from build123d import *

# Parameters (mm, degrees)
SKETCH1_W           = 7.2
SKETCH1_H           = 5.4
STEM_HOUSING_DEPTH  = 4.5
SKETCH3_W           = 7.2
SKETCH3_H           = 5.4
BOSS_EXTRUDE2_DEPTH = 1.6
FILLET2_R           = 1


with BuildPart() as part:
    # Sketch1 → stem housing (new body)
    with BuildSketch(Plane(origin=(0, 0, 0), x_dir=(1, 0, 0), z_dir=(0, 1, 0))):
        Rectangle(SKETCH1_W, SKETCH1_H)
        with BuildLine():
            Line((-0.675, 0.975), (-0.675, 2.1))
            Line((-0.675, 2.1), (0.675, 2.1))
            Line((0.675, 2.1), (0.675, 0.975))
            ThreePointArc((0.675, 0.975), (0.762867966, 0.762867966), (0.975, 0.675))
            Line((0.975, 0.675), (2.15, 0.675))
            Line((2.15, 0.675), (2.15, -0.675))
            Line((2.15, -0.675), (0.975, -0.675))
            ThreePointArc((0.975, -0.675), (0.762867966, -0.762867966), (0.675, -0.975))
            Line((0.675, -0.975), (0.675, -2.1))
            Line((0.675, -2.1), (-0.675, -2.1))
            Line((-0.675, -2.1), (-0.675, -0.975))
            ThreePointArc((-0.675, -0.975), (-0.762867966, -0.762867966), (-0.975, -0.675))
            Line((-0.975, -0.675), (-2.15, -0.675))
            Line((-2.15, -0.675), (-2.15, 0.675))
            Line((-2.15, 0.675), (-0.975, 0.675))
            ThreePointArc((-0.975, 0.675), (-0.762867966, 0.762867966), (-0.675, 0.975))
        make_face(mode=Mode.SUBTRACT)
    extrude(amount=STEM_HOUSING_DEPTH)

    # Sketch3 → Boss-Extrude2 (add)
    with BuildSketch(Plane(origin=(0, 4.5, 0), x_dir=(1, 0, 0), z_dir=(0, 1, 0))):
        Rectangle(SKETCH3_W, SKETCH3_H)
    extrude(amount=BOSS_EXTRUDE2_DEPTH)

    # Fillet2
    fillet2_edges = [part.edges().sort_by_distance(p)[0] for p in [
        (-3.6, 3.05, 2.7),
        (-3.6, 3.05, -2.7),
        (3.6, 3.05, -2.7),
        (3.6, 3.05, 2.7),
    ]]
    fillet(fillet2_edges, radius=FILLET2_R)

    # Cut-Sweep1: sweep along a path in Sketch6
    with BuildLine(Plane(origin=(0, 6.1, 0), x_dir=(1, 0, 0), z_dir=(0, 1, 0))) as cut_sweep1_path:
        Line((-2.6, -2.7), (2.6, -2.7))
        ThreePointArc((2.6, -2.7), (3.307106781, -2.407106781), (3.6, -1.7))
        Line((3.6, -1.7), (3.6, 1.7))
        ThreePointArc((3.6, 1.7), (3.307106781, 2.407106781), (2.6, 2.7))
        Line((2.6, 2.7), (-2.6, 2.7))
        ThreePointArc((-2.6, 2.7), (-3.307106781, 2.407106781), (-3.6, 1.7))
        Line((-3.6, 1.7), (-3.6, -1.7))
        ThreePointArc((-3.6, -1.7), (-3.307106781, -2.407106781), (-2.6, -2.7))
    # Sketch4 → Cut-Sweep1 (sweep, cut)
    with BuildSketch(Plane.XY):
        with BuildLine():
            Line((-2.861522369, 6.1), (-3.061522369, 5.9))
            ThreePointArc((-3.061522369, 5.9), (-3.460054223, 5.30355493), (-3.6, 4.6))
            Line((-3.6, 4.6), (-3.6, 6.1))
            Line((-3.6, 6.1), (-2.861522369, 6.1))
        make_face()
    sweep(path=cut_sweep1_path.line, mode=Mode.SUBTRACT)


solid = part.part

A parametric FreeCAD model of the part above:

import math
import FreeCAD as App
import Part
import Sketcher

V = App.Vector
Q = App.Units.Quantity


def edges_at(feature, points):
    """Names of the edges that pass closest to the given points."""
    edges = feature.Shape.Edges
    near = lambda p: min(range(len(edges)), key=lambda i: edges[i].distToShape(Part.Vertex(*p))[0])
    return sorted({f"Edge{near(p) + 1}" for p in points})

doc = App.newDocument("Part")
params = doc.addObject("Spreadsheet::Sheet", "Params")
for row, (alias, value) in enumerate([
    ("sketch1_radius", "0.3 mm"),
    ("sketch1_width", "7.2 mm"),
    ("sketch1_height", "5.4 mm"),
    ("sketch1_width2", "1.35 mm"),
    ("pad1_length", "4.5 mm"),
    ("sketch2_width", "7.2 mm"),
    ("sketch2_height", "5.4 mm"),
    ("pad2_length", "1.6 mm"),
    ("fillet_radius", "1 mm"),
    ("sketch3_height", "1.5 mm"),
    ("sketch4_radius", "1 mm"),
    ("sketch4_width", "5.2 mm"),
    ("sketch4_height", "3.4 mm"),
], start=1):
    params.set(f"A{row}", alias)
    params.set(f"B{row}", "=" + value)
    params.setAlias(f"B{row}", alias)

body = doc.addObject("PartDesign::Body", "Body")

sketch1 = body.newObject("Sketcher::SketchObject", "Sketch")
sketch1.AttachmentSupport = (doc.getObject("XZ_Plane"), [""])
sketch1.MapMode = "FlatFace"
sketch1.addGeometry([
    Part.LineSegment(V(-3.6, -2.7, 0), V(-3.6, 2.7, 0)),
    Part.LineSegment(V(-3.6, 2.7, 0), V(3.6, 2.7, 0)),
    Part.LineSegment(V(3.6, 2.7, 0), V(3.6, -2.7, 0)),
    Part.LineSegment(V(3.6, -2.7, 0), V(-3.6, -2.7, 0)),
    Part.ArcOfCircle(Part.Circle(V(-0.98, -0.98, 0), V(0, 0, 1), 0.3), math.radians(0), math.radians(90)),
    Part.LineSegment(V(-0.68, -0.97, 0), V(-0.68, -2.1, 0)),
    Part.LineSegment(V(-0.68, -2.1, 0), V(0.68, -2.1, 0)),
    Part.LineSegment(V(0.68, -2.1, 0), V(0.68, -0.97, 0)),
    Part.ArcOfCircle(Part.Circle(V(0.98, -0.98, 0), V(0, 0, 1), 0.3), math.radians(90), math.radians(180)),
    Part.LineSegment(V(0.97, -0.68, 0), V(2.15, -0.68, 0)),
    Part.LineSegment(V(2.15, -0.68, 0), V(2.15, 0.68, 0)),
    Part.LineSegment(V(2.15, 0.68, 0), V(0.97, 0.68, 0)),
    Part.ArcOfCircle(Part.Circle(V(0.98, 0.98, 0), V(0, 0, 1), 0.3), math.radians(-180), math.radians(-90)),
    Part.LineSegment(V(0.68, 0.97, 0), V(0.68, 2.1, 0)),
    Part.LineSegment(V(0.68, 2.1, 0), V(-0.68, 2.1, 0)),
    Part.LineSegment(V(-0.68, 2.1, 0), V(-0.68, 0.97, 0)),
    Part.ArcOfCircle(Part.Circle(V(-0.98, 0.98, 0), V(0, 0, 1), 0.3), math.radians(-90), math.radians(0)),
    Part.LineSegment(V(-0.97, 0.68, 0), V(-2.15, 0.68, 0)),
    Part.LineSegment(V(-2.15, 0.68, 0), V(-2.15, -0.68, 0)),
    Part.LineSegment(V(-2.15, -0.68, 0), V(-0.97, -0.68, 0)),
], False)
sketch1.addConstraint([
    Sketcher.Constraint("Coincident", 0, 2, 1, 1),
    Sketcher.Constraint("Coincident", 1, 2, 2, 1),
    Sketcher.Constraint("Coincident", 2, 2, 3, 1),
    Sketcher.Constraint("Coincident", 3, 2, 0, 1),
    Sketcher.Constraint("Tangent", 4, 1, 5, 1),
    Sketcher.Constraint("Coincident", 5, 2, 6, 1),
    Sketcher.Constraint("Coincident", 6, 2, 7, 1),
    Sketcher.Constraint("Tangent", 7, 2, 8, 2),
    Sketcher.Constraint("Tangent", 8, 1, 9, 1),
    Sketcher.Constraint("Coincident", 9, 2, 10, 1),
    Sketcher.Constraint("Coincident", 10, 2, 11, 1),
    Sketcher.Constraint("Tangent", 11, 2, 12, 2),
    Sketcher.Constraint("Tangent", 12, 1, 13, 1),
    Sketcher.Constraint("Coincident", 13, 2, 14, 1),
    Sketcher.Constraint("Coincident", 14, 2, 15, 1),
    Sketcher.Constraint("Tangent", 15, 2, 16, 2),
    Sketcher.Constraint("Tangent", 16, 1, 17, 1),
    Sketcher.Constraint("Coincident", 17, 2, 18, 1),
    Sketcher.Constraint("Coincident", 18, 2, 19, 1),
    Sketcher.Constraint("Tangent", 19, 2, 4, 2),
    Sketcher.Constraint("Vertical", 0),
    Sketcher.Constraint("Horizontal", 1),
    Sketcher.Constraint("Vertical", 2),
    Sketcher.Constraint("Horizontal", 3),
    Sketcher.Constraint("Vertical", 5),
    Sketcher.Constraint("Horizontal", 6),
    Sketcher.Constraint("Vertical", 7),
    Sketcher.Constraint("Horizontal", 9),
    Sketcher.Constraint("Vertical", 10),
    Sketcher.Constraint("Horizontal", 11),
    Sketcher.Constraint("Vertical", 13),
    Sketcher.Constraint("Horizontal", 14),
    Sketcher.Constraint("Vertical", 15),
    Sketcher.Constraint("Horizontal", 17),
    Sketcher.Constraint("Vertical", 18),
    Sketcher.Constraint("Horizontal", 19),
    Sketcher.Constraint("Equal", 4, 8),
    Sketcher.Constraint("Equal", 8, 12),
    Sketcher.Constraint("Equal", 12, 16),
    Sketcher.Constraint("Symmetric", 4, 3, 12, 3, -1, 1),
    Sketcher.Constraint("Symmetric", 8, 3, 16, 3, -1, 1),
    Sketcher.Constraint("Symmetric", 0, 2, 2, 2, -1, 1),
    Sketcher.Constraint("Symmetric", 4, 3, 8, 3, -2),
    Sketcher.Constraint("Equal", 11, 17),
    Sketcher.Constraint("Equal", 14, 10),
    Sketcher.Constraint("Equal", 7, 13),
    Sketcher.Constraint("Radius", 4, 0.3),
    Sketcher.Constraint("DistanceX", 1, 1, 1, 2, 7.2),
    Sketcher.Constraint("DistanceY", 0, 1, 0, 2, 5.4),
    Sketcher.Constraint("DistanceX", 6, 1, 6, 2, 1.35),
    Sketcher.Constraint("DistanceY", 5, 2, -1, 1, 2.1),
    Sketcher.Constraint("DistanceX", 9, 1, 9, 2, 1.175),
])
sketch1.setExpression("Constraints[46]", "Params.sketch1_radius")
sketch1.setExpression("Constraints[47]", "Params.sketch1_width")
sketch1.setExpression("Constraints[48]", "Params.sketch1_height")
sketch1.setExpression("Constraints[49]", "Params.sketch1_width2")
pad1 = body.newObject("PartDesign::Pad", "Pad")
pad1.Profile = sketch1
pad1.setExpression("Length", "Params.pad1_length")
pad1.Reversed = True

sketch2 = body.newObject("Sketcher::SketchObject", "Sketch001")
sketch2.AttachmentSupport = (doc.getObject("XZ_Plane"), [""])
sketch2.MapMode = "FlatFace"
sketch2.AttachmentOffset = App.Placement(V(0, 0, -4.5), App.Rotation())
sketch2.addGeometry([
    Part.LineSegment(V(-4, -3, 0), V(-4, 3, 0)),
    Part.LineSegment(V(-4, 3, 0), V(4, 3, 0)),
    Part.LineSegment(V(4, 3, 0), V(4, -3, 0)),
    Part.LineSegment(V(4, -3, 0), V(-4, -3, 0)),
], False)
sketch2.addConstraint([
    Sketcher.Constraint("Coincident", 0, 2, 1, 1),
    Sketcher.Constraint("Coincident", 1, 2, 2, 1),
    Sketcher.Constraint("Coincident", 2, 2, 3, 1),
    Sketcher.Constraint("Coincident", 3, 2, 0, 1),
    Sketcher.Constraint("Vertical", 0),
    Sketcher.Constraint("Horizontal", 1),
    Sketcher.Constraint("Vertical", 2),
    Sketcher.Constraint("Horizontal", 3),
    Sketcher.Constraint("Symmetric", 0, 2, 2, 2, -1, 1),
    Sketcher.Constraint("DistanceX", 1, 1, 1, 2, 7.2),
    Sketcher.Constraint("DistanceY", 0, 1, 0, 2, 5.4),
])
sketch2.setExpression("Constraints[9]", "Params.sketch2_width")
sketch2.setExpression("Constraints[10]", "Params.sketch2_height")
pad2 = body.newObject("PartDesign::Pad", "Pad001")
pad2.Profile = sketch2
pad2.setExpression("Length", "Params.pad2_length")
pad2.Reversed = True
doc.recompute()

fillet = body.newObject("PartDesign::Fillet", "Fillet")
fillet.Base = (pad2, edges_at(pad2, [
    (-3.6, 3.05, 2.7),
    (-3.6, 3.05, -2.7),
    (3.6, 3.05, -2.7),
    (3.6, 3.05, 2.7),
]))
fillet.setExpression("Radius", "Params.fillet_radius")

sketch3 = body.newObject("Sketcher::SketchObject", "Sketch002")
sketch3.AttachmentSupport = (doc.getObject("XY_Plane"), [""])
sketch3.MapMode = "FlatFace"
sketch3.addGeometry([
    Part.LineSegment(V(-3.06, 5.9, 0), V(-2.86, 6.1, 0)),
    Part.LineSegment(V(-2.86, 6.1, 0), V(-3.6, 6.1, 0)),
    Part.LineSegment(V(-3.6, 6.1, 0), V(-3.6, 4.6, 0)),
    Part.ArcOfCircle(Part.Circle(V(-1.76, 4.6, 0), V(0, 0, 1), 1.84), math.radians(135), math.radians(180)),
], False)
sketch3.addConstraint([
    Sketcher.Constraint("Coincident", 0, 2, 1, 1),
    Sketcher.Constraint("Coincident", 1, 2, 2, 1),
    Sketcher.Constraint("Tangent", 2, 2, 3, 2),
    Sketcher.Constraint("Tangent", 3, 1, 0, 1),
    Sketcher.Constraint("Horizontal", 1),
    Sketcher.Constraint("Vertical", 2),
    Sketcher.Constraint("Angle", 0, Q("45 deg")),
    Sketcher.Constraint("DistanceY", 2, 2, 2, 1, 1.5),
    Sketcher.Constraint("DistanceY", -1, 1, 3, 3, 4.6),
    Sketcher.Constraint("DistanceX", 1, 2, -1, 1, 3.6),
    Sketcher.Constraint("DistanceY", -1, 1, 3, 1, 5.9),
])
sketch3.setExpression("Constraints[7]", "Params.sketch3_height")

sketch4 = body.newObject("Sketcher::SketchObject", "Sketch003")
sketch4.AttachmentSupport = (doc.getObject("XZ_Plane"), [""])
sketch4.MapMode = "FlatFace"
sketch4.AttachmentOffset = App.Placement(V(0, 0, -6.1), App.Rotation())
sketch4.addGeometry([
    Part.LineSegment(V(-2.6, 2.7, 0), V(2.6, 2.7, 0)),
    Part.ArcOfCircle(Part.Circle(V(2.6, 1.7, 0), V(0, 0, 1), 1), math.radians(0), math.radians(90)),
    Part.LineSegment(V(3.6, 1.7, 0), V(3.6, -1.7, 0)),
    Part.ArcOfCircle(Part.Circle(V(2.6, -1.7, 0), V(0, 0, 1), 1), math.radians(-90), math.radians(0)),
    Part.LineSegment(V(2.6, -2.7, 0), V(-2.6, -2.7, 0)),
    Part.ArcOfCircle(Part.Circle(V(-2.6, -1.7, 0), V(0, 0, 1), 1), math.radians(-180), math.radians(-90)),
    Part.LineSegment(V(-3.6, -1.7, 0), V(-3.6, 1.7, 0)),
    Part.ArcOfCircle(Part.Circle(V(-2.6, 1.7, 0), V(0, 0, 1), 1), math.radians(90), math.radians(180)),
], False)
sketch4.addConstraint([
    Sketcher.Constraint("Tangent", 0, 2, 1, 2),
    Sketcher.Constraint("Tangent", 1, 1, 2, 1),
    Sketcher.Constraint("Tangent", 2, 2, 3, 2),
    Sketcher.Constraint("Tangent", 3, 1, 4, 1),
    Sketcher.Constraint("Tangent", 4, 2, 5, 2),
    Sketcher.Constraint("Tangent", 5, 1, 6, 1),
    Sketcher.Constraint("Tangent", 6, 2, 7, 2),
    Sketcher.Constraint("Tangent", 7, 1, 0, 1),
    Sketcher.Constraint("Horizontal", 0),
    Sketcher.Constraint("Vertical", 2),
    Sketcher.Constraint("Horizontal", 4),
    Sketcher.Constraint("Vertical", 6),
    Sketcher.Constraint("Equal", 1, 3),
    Sketcher.Constraint("Equal", 3, 5),
    Sketcher.Constraint("Equal", 5, 7),
    Sketcher.Constraint("Symmetric", 1, 3, 5, 3, -1, 1),
    Sketcher.Constraint("Radius", 1, 1.0),
    Sketcher.Constraint("DistanceX", 0, 1, 0, 2, 5.2),
    Sketcher.Constraint("DistanceY", 2, 2, 2, 1, 3.4),
])
sketch4.setExpression("Constraints[16]", "Params.sketch4_radius")
sketch4.setExpression("Constraints[17]", "Params.sketch4_width")
sketch4.setExpression("Constraints[18]", "Params.sketch4_height")
doc.recompute()

subtractivepipe = body.newObject("PartDesign::SubtractivePipe", "SubtractivePipe")
subtractivepipe.Profile = sketch3
subtractivepipe.Spine = (sketch4, ["Edge1", "Edge2", "Edge3", "Edge4", "Edge5", "Edge6", "Edge7", "Edge8"])

doc.recompute()
